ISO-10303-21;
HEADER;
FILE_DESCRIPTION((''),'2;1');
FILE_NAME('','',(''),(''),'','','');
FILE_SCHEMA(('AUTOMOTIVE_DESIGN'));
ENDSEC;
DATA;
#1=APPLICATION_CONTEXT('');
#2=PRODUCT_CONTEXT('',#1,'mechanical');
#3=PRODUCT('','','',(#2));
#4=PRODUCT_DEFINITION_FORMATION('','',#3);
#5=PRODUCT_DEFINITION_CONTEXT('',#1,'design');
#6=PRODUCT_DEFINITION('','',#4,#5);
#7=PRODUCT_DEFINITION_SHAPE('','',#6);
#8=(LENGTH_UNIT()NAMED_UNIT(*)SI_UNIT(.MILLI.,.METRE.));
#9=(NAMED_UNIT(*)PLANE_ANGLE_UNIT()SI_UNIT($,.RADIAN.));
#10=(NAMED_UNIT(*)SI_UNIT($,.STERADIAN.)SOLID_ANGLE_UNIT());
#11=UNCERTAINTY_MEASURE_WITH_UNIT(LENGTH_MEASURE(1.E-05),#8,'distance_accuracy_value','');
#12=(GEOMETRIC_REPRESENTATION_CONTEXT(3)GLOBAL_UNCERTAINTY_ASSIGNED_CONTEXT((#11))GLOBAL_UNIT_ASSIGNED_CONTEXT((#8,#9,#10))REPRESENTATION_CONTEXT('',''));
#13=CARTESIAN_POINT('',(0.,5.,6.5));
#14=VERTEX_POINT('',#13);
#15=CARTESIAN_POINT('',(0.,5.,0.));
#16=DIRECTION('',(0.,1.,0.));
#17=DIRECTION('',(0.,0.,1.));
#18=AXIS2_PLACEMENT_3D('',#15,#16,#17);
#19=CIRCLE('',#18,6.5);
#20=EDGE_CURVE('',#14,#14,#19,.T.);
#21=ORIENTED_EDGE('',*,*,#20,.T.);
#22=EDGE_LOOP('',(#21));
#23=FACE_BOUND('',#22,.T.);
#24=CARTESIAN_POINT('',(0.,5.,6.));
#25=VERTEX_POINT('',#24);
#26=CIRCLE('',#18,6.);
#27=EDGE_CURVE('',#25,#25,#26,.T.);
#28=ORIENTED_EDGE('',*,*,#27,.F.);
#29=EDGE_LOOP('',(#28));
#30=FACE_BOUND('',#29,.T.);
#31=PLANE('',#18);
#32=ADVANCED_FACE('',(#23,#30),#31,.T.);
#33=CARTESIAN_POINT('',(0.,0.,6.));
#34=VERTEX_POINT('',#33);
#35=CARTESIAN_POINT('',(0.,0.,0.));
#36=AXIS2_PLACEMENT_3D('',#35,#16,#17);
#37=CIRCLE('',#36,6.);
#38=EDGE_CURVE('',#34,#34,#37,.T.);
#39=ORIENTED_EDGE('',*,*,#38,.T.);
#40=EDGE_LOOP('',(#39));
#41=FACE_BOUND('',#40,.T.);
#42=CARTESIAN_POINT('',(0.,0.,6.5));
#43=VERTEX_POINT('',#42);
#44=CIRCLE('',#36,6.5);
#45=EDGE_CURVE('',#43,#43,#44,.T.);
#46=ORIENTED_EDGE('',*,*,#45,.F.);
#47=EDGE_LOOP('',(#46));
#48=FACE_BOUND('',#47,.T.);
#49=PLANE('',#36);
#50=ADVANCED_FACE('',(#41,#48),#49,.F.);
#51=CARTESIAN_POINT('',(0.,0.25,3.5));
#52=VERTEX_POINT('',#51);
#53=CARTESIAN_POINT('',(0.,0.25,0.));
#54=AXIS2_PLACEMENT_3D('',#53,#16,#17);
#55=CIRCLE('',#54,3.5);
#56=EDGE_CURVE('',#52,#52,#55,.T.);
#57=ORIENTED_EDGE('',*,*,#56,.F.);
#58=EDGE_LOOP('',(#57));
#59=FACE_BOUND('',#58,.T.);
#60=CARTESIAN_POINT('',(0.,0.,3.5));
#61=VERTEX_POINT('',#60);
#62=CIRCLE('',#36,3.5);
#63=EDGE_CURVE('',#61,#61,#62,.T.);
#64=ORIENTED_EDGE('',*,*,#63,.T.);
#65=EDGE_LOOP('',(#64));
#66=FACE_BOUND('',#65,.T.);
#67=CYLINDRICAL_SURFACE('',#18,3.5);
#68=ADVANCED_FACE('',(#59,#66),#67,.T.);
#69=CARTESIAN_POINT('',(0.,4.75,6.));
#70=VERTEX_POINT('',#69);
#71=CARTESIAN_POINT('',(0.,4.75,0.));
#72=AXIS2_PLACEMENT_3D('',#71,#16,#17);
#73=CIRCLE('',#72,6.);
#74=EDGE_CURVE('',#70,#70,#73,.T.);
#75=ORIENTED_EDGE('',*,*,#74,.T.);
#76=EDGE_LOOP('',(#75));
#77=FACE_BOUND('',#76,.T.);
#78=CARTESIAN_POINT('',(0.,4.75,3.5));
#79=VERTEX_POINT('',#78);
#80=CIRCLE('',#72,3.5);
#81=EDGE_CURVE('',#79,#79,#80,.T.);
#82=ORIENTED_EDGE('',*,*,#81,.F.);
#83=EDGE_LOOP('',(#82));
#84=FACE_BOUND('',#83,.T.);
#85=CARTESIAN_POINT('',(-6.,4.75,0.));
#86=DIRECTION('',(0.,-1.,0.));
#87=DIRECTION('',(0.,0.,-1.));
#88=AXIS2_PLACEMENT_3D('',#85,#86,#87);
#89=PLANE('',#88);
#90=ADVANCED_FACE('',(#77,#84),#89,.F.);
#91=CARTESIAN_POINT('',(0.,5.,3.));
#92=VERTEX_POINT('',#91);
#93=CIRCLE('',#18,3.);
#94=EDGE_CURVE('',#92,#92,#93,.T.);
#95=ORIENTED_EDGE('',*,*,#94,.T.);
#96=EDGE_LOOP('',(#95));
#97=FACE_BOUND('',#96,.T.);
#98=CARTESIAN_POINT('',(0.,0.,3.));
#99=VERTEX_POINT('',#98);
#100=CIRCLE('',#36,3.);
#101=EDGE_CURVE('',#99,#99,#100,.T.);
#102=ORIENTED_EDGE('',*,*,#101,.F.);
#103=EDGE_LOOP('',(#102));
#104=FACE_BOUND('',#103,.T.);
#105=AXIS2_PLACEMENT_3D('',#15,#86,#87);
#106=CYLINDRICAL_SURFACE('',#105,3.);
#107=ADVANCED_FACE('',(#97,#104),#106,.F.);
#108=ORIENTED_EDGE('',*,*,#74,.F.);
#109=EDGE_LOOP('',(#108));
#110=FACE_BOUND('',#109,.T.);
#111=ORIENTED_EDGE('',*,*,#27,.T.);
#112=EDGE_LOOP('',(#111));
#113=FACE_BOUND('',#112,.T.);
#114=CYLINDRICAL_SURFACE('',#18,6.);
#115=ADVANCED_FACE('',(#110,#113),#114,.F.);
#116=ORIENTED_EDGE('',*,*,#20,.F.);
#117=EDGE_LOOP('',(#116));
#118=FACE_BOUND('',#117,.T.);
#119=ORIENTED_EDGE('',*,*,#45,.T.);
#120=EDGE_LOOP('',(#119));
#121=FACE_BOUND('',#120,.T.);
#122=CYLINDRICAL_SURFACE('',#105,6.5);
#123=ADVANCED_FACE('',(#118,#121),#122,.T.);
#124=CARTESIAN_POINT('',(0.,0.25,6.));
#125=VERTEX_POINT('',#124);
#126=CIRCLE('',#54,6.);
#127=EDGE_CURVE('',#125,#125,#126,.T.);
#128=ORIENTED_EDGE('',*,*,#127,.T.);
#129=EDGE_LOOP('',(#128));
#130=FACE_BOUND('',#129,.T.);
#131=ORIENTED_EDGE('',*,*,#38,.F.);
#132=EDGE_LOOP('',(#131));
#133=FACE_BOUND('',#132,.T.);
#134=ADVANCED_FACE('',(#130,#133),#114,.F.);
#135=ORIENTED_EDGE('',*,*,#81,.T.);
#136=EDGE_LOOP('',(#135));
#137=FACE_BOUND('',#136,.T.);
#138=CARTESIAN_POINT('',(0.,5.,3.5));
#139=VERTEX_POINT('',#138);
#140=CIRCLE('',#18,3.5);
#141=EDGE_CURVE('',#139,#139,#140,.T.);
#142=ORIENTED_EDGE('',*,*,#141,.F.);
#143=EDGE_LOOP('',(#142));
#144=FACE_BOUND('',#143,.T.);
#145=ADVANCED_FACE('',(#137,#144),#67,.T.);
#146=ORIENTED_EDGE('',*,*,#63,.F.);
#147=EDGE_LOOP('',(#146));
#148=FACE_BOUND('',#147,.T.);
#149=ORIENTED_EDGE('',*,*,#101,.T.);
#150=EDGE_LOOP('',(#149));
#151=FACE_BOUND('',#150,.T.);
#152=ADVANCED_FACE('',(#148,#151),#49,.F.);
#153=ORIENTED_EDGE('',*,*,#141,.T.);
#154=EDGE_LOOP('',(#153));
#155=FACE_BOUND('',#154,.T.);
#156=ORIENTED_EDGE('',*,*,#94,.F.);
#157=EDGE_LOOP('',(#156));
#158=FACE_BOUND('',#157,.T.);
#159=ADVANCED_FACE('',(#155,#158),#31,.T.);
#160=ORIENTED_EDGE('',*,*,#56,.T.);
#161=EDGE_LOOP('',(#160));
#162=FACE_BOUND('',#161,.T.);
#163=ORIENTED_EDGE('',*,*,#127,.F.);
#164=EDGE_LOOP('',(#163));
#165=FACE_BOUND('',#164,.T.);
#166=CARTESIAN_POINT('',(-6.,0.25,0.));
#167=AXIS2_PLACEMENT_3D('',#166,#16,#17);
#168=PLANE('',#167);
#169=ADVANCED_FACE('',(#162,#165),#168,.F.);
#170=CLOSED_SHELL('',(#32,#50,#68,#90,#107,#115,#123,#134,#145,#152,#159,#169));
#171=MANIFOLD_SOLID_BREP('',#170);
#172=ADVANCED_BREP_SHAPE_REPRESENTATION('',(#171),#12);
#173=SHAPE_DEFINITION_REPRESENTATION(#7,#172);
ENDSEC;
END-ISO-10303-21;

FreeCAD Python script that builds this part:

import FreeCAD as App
import Part
import Sketcher


def add_polygon(sketch, points):
    """Adds a closed chain of lines whose ends are joined by coincident constraints."""
    first, n = sketch.GeometryCount, len(points)
    for a, b in zip(points, points[1:] + points[:1]):
        sketch.addGeometry(Part.LineSegment(App.Vector(*a, 0), App.Vector(*b, 0)), False)
    for i in range(n):
        sketch.addConstraint(Sketcher.Constraint("Coincident", first + i, 2, first + (i + 1) % n, 1))

doc = App.newDocument("Part")
body = doc.addObject("PartDesign::Body", "Body")

# Sketch on XZ plane
sketch1 = body.newObject("Sketcher::SketchObject", "Sketch")
sketch1.AttachmentSupport = (doc.getObject("XZ_Plane"), [""])
sketch1.MapMode = "FlatFace"
sketch1.addGeometry([
    Part.Circle(App.Vector(0, 0, 0), App.Vector(0, 0, 1), 6.5),
    Part.Circle(App.Vector(0, 0, 0), App.Vector(0, 0, 1), 3),
], False)
sketch1.addConstraint([
    Sketcher.Constraint("Coincident", 0, 3, -1, 1),
    Sketcher.Constraint("Coincident", 1, 3, -1, 1),
    Sketcher.Constraint("Diameter", 0, 13.0),
    Sketcher.Constraint("Diameter", 1, 6.0),
])
pad1 = body.newObject("PartDesign::Pad", "Pad")
pad1.Profile = sketch1
pad1.Length = 5
pad1.Reversed = True

# Sketch on XY plane
sketch2 = body.newObject("Sketcher::SketchObject", "Sketch001")
sketch2.AttachmentSupport = (doc.getObject("XY_Plane"), [""])
sketch2.MapMode = "FlatFace"
add_polygon(sketch2, [(-6, 5), (-6, 4.75), (-3.5, 4.75), (-3.5, 5)])  # lines 0-3
add_polygon(sketch2, [(-6, 0.25), (-6, 0), (-3.5, 0), (-3.5, 0.25)])  # lines 4-7
sketch2.addConstraint([
    Sketcher.Constraint("Vertical", 0),
    Sketcher.Constraint("Horizontal", 1),
    Sketcher.Constraint("Vertical", 2),
    Sketcher.Constraint("Horizontal", 3),
    Sketcher.Constraint("Vertical", 4),
    Sketcher.Constraint("Horizontal", 5),
    Sketcher.Constraint("Vertical", 6),
    Sketcher.Constraint("Horizontal", 7),
    Sketcher.Constraint("PointOnObject", 4, 2, -1),
    Sketcher.Constraint("Vertical", 3, 2, 4, 2),
    Sketcher.Constraint("Vertical", 2, 2, 5, 2),
    Sketcher.Constraint("Equal", 2, 4),
    Sketcher.Constraint("DistanceX", 1, 1, 1, 2, 2.5),
    Sketcher.Constraint("DistanceX", 0, 2, -1, 1, 6.0),
    Sketcher.Constraint("DistanceY", -1, 1, 2, 2, 5.0),
    Sketcher.Constraint("DistanceY", 0, 2, 0, 1, 0.25),
])
groove = body.newObject("PartDesign::Groove", "Groove")
groove.Profile = sketch2
groove.ReferenceAxis = (sketch2, ["V_Axis"])
groove.Angle = 360

doc.recompute()
